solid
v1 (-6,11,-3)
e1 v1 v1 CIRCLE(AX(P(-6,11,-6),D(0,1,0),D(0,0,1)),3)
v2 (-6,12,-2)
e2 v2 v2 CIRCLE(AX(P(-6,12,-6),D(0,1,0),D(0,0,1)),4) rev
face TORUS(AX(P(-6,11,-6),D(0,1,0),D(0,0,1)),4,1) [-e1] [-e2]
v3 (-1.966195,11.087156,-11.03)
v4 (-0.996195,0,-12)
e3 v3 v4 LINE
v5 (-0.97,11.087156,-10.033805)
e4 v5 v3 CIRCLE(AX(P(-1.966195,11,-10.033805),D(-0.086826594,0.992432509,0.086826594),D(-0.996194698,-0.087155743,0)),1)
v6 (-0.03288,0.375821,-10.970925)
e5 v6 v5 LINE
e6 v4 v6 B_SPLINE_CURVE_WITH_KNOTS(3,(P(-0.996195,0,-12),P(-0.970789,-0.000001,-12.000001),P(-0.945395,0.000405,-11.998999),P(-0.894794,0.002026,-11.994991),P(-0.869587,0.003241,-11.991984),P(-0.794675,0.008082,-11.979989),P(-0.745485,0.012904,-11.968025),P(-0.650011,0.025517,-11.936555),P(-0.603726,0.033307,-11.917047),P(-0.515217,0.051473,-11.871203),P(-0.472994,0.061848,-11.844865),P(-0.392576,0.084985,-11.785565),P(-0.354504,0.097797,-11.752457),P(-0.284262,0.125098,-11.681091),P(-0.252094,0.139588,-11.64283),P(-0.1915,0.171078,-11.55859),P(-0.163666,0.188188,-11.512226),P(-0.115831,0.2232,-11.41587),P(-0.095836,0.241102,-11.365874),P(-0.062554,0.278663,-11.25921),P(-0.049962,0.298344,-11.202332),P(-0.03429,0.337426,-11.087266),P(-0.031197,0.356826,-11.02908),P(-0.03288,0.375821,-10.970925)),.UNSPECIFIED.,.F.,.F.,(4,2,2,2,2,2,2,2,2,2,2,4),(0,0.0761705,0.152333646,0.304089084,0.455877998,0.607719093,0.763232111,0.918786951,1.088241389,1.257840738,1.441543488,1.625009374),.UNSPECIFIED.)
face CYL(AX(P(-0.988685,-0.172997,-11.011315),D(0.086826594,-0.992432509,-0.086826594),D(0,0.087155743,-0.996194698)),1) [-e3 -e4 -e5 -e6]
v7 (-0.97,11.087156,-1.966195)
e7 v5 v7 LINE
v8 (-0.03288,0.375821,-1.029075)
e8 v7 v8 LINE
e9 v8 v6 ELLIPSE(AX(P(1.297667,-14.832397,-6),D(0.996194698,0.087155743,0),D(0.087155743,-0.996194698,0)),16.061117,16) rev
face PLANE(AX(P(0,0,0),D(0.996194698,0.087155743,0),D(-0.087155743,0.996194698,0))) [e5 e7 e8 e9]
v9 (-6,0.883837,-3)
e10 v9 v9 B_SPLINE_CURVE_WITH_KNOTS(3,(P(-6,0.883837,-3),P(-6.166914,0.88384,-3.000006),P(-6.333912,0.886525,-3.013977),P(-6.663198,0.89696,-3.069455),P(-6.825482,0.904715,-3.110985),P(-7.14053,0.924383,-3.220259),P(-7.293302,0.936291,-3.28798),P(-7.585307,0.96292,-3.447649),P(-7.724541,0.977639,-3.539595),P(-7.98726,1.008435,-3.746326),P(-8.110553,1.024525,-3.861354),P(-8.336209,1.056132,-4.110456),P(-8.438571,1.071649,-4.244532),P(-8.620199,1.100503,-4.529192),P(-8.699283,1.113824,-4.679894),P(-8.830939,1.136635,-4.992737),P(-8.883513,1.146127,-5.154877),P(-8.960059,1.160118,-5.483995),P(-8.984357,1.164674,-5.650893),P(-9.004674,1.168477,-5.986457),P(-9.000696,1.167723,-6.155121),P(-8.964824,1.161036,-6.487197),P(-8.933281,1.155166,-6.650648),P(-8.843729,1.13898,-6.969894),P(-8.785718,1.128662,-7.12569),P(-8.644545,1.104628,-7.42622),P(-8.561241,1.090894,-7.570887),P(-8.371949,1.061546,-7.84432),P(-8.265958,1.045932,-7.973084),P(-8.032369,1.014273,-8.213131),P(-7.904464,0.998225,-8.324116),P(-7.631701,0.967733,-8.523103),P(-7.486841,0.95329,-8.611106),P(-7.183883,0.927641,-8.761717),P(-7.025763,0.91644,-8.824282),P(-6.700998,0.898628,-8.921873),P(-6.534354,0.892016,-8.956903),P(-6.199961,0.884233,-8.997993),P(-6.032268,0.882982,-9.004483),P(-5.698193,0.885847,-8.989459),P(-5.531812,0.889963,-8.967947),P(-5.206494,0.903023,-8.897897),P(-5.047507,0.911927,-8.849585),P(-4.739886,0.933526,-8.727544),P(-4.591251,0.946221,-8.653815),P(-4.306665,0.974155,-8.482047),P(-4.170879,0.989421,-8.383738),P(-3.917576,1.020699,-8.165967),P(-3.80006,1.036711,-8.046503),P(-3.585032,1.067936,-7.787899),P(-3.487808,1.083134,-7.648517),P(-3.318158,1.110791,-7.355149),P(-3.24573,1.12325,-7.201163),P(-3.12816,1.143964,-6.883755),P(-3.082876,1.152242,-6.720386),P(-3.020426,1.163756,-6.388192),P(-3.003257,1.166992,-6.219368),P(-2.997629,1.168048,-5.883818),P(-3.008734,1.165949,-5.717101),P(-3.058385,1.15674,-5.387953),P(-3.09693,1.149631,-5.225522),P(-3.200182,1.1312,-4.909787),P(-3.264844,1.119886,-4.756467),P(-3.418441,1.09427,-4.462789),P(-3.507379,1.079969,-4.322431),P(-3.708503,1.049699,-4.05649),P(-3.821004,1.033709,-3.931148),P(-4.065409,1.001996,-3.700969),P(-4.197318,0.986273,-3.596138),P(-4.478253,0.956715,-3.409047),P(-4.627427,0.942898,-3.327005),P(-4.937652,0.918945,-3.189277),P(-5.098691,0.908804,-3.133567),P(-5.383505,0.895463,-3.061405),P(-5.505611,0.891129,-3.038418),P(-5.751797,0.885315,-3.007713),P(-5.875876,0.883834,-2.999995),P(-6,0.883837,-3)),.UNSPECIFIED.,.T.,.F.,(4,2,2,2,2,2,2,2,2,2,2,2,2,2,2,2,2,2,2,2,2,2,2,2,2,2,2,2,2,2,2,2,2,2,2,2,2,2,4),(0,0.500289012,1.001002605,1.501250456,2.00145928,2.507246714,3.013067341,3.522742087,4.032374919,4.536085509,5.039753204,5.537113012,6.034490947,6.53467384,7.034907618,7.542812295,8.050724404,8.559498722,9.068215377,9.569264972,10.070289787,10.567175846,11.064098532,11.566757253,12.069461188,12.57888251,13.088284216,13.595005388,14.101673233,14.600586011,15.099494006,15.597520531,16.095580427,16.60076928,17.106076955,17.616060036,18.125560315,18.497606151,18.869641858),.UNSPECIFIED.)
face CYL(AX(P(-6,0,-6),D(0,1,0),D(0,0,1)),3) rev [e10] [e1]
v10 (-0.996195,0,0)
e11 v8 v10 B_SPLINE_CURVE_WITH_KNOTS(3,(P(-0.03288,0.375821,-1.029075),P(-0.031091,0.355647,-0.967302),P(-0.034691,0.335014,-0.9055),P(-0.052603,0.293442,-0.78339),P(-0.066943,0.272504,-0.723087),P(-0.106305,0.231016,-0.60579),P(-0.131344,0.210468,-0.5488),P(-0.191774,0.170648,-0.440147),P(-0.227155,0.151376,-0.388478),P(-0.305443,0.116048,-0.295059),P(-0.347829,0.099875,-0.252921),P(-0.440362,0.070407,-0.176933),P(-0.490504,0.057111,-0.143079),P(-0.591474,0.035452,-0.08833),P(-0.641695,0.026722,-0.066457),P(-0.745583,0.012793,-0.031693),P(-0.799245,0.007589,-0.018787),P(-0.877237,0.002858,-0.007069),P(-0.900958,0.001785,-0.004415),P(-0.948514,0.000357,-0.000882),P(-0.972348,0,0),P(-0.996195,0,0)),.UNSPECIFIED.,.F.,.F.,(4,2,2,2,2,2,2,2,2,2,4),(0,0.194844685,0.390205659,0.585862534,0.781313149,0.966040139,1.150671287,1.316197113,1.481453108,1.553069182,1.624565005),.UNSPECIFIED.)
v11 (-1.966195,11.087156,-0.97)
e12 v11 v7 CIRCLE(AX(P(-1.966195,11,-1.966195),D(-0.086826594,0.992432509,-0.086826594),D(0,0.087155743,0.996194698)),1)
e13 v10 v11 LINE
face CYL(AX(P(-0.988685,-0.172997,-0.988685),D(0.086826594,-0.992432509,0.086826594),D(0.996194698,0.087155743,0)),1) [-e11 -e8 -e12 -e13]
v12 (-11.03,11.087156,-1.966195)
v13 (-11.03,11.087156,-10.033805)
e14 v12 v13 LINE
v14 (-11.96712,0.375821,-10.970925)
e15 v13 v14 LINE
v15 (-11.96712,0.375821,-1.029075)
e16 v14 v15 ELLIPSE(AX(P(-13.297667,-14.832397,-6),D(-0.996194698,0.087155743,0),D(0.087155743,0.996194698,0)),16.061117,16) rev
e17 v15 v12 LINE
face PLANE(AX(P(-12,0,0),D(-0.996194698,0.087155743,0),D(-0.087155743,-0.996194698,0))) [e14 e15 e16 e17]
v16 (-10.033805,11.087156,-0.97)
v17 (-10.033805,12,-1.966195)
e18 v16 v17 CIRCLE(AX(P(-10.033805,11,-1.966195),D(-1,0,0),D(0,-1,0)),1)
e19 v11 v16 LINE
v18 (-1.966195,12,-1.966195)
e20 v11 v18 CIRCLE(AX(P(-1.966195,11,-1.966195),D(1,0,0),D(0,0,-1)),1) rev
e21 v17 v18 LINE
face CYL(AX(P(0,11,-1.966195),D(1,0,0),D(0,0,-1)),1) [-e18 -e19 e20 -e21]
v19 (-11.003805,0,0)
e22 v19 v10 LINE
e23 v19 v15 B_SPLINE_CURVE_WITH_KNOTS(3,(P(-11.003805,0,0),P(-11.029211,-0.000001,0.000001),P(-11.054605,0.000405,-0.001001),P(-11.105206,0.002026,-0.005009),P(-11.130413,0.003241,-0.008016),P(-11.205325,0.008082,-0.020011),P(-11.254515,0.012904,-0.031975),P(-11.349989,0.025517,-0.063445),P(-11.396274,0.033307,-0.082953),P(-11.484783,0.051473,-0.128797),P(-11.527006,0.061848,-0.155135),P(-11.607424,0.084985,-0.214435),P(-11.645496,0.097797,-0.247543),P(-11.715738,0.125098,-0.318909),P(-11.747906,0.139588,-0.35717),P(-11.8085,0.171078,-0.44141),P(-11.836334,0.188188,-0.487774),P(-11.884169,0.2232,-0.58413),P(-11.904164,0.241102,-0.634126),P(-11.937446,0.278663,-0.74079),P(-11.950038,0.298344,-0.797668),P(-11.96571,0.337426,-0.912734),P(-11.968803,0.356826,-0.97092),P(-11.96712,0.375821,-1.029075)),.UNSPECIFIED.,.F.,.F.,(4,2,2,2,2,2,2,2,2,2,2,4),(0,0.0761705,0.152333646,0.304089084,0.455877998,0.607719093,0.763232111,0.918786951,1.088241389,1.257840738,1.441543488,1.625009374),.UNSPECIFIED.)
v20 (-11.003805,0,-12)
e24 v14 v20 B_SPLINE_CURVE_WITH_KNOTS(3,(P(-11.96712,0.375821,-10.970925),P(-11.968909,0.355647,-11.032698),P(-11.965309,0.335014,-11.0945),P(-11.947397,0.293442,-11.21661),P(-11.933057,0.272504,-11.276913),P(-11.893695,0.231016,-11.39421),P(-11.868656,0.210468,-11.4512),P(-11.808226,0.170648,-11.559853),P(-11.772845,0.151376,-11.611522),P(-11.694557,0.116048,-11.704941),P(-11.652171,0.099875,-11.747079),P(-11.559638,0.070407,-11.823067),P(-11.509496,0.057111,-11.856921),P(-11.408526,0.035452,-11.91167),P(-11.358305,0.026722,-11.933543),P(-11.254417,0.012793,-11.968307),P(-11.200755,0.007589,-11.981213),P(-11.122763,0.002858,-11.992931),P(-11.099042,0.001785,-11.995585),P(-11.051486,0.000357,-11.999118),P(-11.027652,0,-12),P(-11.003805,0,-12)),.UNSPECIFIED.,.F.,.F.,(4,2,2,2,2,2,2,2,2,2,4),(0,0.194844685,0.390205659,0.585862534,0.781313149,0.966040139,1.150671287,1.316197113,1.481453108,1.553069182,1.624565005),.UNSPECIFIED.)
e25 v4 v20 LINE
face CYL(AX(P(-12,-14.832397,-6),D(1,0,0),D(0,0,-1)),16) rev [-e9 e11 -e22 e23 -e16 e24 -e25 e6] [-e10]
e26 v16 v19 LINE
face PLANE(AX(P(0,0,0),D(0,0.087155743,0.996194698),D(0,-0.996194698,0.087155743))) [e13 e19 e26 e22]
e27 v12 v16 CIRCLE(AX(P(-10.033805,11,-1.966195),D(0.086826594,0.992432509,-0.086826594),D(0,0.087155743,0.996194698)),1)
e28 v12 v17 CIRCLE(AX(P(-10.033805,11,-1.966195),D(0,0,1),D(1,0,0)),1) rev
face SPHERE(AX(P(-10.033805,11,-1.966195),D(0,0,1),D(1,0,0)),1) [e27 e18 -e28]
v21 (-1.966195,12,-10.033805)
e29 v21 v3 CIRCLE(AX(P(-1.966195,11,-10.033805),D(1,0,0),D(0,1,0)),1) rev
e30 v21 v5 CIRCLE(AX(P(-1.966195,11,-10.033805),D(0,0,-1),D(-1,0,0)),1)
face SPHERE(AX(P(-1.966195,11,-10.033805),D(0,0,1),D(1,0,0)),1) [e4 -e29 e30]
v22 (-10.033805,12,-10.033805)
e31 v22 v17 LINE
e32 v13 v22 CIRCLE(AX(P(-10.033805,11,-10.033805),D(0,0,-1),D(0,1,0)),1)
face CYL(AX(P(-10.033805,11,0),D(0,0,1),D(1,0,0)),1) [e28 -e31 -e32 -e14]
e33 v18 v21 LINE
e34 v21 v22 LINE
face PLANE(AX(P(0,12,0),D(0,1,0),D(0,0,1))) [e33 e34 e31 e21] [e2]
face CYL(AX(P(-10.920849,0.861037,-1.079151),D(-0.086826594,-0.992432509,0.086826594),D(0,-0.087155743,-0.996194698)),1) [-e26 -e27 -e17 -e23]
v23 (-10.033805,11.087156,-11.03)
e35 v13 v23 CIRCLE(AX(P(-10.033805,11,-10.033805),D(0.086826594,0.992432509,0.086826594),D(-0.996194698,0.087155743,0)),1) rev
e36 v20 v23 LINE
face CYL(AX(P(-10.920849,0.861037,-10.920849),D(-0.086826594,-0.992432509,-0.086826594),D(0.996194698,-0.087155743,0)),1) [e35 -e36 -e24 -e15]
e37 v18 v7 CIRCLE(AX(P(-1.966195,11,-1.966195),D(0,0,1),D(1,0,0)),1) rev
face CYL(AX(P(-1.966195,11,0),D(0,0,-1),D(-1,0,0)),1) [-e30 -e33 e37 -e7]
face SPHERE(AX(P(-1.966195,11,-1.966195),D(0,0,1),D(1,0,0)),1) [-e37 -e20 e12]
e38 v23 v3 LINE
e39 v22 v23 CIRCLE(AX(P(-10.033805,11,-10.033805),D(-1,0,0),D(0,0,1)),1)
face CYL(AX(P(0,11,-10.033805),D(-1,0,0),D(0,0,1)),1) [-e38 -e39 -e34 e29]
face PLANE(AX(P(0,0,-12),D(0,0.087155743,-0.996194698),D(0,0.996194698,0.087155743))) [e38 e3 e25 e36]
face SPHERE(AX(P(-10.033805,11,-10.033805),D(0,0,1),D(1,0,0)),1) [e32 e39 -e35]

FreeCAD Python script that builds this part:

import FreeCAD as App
import Part
import Sketcher

V = App.Vector


def edges_at(feature, points):
    """Names of the edges that pass closest to the given points."""
    edges = feature.Shape.Edges
    near = lambda p: min(range(len(edges)), key=lambda i: edges[i].distToShape(Part.Vertex(*p))[0])
    return sorted({f"Edge{near(p) + 1}" for p in points})


def add_polygon(sketch, points):
    """Adds a closed chain of lines whose ends are joined by coincident constraints."""
    first, n = sketch.GeometryCount, len(points)
    for a, b in zip(points, points[1:] + points[:1]):
        sketch.addGeometry(Part.LineSegment(App.Vector(*a, 0), App.Vector(*b, 0)), False)
    for i in range(n):
        sketch.addConstraint(Sketcher.Constraint("Coincident", first + i, 2, first + (i + 1) % n, 1))

doc = App.newDocument("Part")
body = doc.addObject("PartDesign::Body", "Body")

sketch1 = body.newObject("Sketcher::SketchObject", "Sketch")
sketch1.AttachmentSupport = (doc.getObject("XZ_Plane"), [""])
sketch1.MapMode = "FlatFace"
add_polygon(sketch1, [(-12, -12), (-12, 0), (0, 0), (0, -12)])
sketch1.addConstraint([
    Sketcher.Constraint("Vertical", 0),
    Sketcher.Constraint("Horizontal", 1),
    Sketcher.Constraint("Vertical", 2),
    Sketcher.Constraint("Horizontal", 3),
    Sketcher.Constraint("Coincident", 1, 2, -1, 1),
    Sketcher.Constraint("Equal", 3, 0),
    Sketcher.Constraint("DistanceX", 1, 1, 1, 2, 12.0),
])
pad1 = body.newObject("PartDesign::Pad", "Pad")
pad1.Profile = sketch1
pad1.Length = 12
pad1.Reversed = True
pad1.TaperAngle = -5

sketch2 = body.newObject("Sketcher::SketchObject", "Sketch001")
sketch2.AttachmentSupport = (doc.getObject("XZ_Plane"), [""])
sketch2.MapMode = "FlatFace"
sketch2.AttachmentOffset = App.Placement(V(0, 0, -12), App.Rotation())
sketch2.addGeometry(Part.Circle(V(-6, -6, 0), V(0, 0, 1), 3), False)
sketch2.addConstraint([
    Sketcher.Constraint("Diameter", 0, 6.0),
    Sketcher.Constraint("DistanceX", 0, 3, -1, 1, 6.0),
    Sketcher.Constraint("DistanceY", 0, 3, -1, 1, 6.0),
])
pocket1 = body.newObject("PartDesign::Pocket", "Pocket")
pocket1.Profile = sketch2
pocket1.Type = "ThroughAll"
pocket1.Reversed = True
doc.recompute()

fillet = body.newObject("PartDesign::Fillet", "Fillet")
fillet.Base = (pocket1, edges_at(pocket1, [
    (-10.95, 12, -6),
    (-6, 12, -1.05),
    (-6, 12, -9),
    (-1.05, 12, -6),
    (-6, 12, -10.95),
    (-0.525, 6, -0.525),
    (-11.475, 6, -0.525),
    (-11.475, 6, -11.475),
    (-0.525, 6, -11.475),
]))
fillet.Radius = 1

sketch3 = body.newObject("Sketcher::SketchObject", "Sketch002")
sketch3.AttachmentSupport = (doc.getObject("YZ_Plane"), [""])
sketch3.MapMode = "FlatFace"
sketch3.addGeometry(Part.Circle(V(-14.832397, -6, 0), V(0, 0, 1), 16), False)
sketch3.addConstraint([
    Sketcher.Constraint("Diameter", 0, 32.0),
    Sketcher.Constraint("DistanceY", 0, 3, -1, 1, 6.0),
    Sketcher.Constraint("DistanceX", 0, 3, -1, 1, 14.832397),
])
pocket2 = body.newObject("PartDesign::Pocket", "Pocket001")
pocket2.Profile = sketch3
pocket2.Type = "ThroughAll"

doc.recompute()
